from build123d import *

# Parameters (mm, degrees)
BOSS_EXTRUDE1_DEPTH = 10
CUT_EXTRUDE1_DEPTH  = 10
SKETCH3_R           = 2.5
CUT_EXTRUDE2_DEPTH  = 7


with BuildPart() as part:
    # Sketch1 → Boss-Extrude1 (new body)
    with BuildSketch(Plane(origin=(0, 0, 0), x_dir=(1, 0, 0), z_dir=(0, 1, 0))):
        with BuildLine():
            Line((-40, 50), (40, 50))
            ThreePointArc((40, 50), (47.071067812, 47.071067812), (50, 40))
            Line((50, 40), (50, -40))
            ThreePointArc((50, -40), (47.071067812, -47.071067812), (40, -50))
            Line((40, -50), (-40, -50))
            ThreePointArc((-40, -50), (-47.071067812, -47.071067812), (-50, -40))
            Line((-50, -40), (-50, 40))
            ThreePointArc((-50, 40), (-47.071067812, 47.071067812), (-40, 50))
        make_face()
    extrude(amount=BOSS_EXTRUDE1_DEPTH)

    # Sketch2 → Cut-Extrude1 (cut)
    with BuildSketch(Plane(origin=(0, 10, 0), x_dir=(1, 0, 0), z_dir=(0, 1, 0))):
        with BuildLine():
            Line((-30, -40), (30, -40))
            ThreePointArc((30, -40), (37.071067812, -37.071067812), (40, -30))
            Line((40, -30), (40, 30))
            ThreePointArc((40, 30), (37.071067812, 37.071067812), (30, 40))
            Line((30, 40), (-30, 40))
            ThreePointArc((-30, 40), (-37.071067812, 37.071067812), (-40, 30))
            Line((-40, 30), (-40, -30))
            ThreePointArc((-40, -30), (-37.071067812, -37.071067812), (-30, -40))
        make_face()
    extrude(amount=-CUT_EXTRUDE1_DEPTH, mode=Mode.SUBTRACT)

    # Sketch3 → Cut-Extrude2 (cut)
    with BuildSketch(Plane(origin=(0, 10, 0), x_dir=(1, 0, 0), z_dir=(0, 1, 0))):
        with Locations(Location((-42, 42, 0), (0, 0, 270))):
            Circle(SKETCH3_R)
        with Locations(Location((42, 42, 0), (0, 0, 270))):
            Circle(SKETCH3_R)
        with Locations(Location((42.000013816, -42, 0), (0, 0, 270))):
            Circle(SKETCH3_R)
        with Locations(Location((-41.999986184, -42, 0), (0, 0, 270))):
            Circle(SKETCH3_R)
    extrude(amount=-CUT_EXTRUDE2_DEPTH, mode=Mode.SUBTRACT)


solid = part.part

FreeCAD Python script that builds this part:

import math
import FreeCAD as App
import Part
import Sketcher

doc = App.newDocument("Part")
body = doc.addObject("PartDesign::Body", "Body")

sketch1 = body.newObject("Sketcher::SketchObject", "Sketch")
sketch1.AttachmentSupport = (doc.getObject("XZ_Plane"), [""])
sketch1.MapMode = "FlatFace"
sketch1.addGeometry(Part.LineSegment(App.Vector(40, -50, 0), App.Vector(-40, -50, 0)), False)
sketch1.addGeometry(Part.ArcOfCircle(Part.Circle(App.Vector(-40, -40, 0), App.Vector(0, 0, 1), 10), math.radians(180), math.radians(270)), False)
sketch1.addGeometry(Part.LineSegment(App.Vector(-50, -40, 0), App.Vector(-50, 40, 0)), False)
sketch1.addGeometry(Part.ArcOfCircle(Part.Circle(App.Vector(-40, 40, 0), App.Vector(0, 0, 1), 10), math.radians(90), math.radians(180)), False)
sketch1.addGeometry(Part.LineSegment(App.Vector(-40, 50, 0), App.Vector(40, 50, 0)), False)
sketch1.addGeometry(Part.ArcOfCircle(Part.Circle(App.Vector(40, 40, 0), App.Vector(0, 0, 1), 10), math.radians(0), math.radians(90)), False)
sketch1.addGeometry(Part.LineSegment(App.Vector(50, 40, 0), App.Vector(50, -40, 0)), False)
sketch1.addGeometry(Part.ArcOfCircle(Part.Circle(App.Vector(40, -40, 0), App.Vector(0, 0, 1), 10), math.radians(-90), math.radians(0)), False)
sketch1.addConstraint(Sketcher.Constraint("Tangent", 0, 2, 1, 2))
sketch1.addConstraint(Sketcher.Constraint("Tangent", 1, 1, 2, 1))
sketch1.addConstraint(Sketcher.Constraint("Tangent", 2, 2, 3, 2))
sketch1.addConstraint(Sketcher.Constraint("Tangent", 3, 1, 4, 1))
sketch1.addConstraint(Sketcher.Constraint("Tangent", 4, 2, 5, 2))
sketch1.addConstraint(Sketcher.Constraint("Tangent", 5, 1, 6, 1))
sketch1.addConstraint(Sketcher.Constraint("Tangent", 6, 2, 7, 2))
sketch1.addConstraint(Sketcher.Constraint("Tangent", 7, 1, 0, 1))
sketch1.addConstraint(Sketcher.Constraint("Horizontal", 0))
sketch1.addConstraint(Sketcher.Constraint("Vertical", 2))
sketch1.addConstraint(Sketcher.Constraint("Horizontal", 4))
sketch1.addConstraint(Sketcher.Constraint("Vertical", 6))
sketch1.addConstraint(Sketcher.Constraint("Equal", 1, 3))
sketch1.addConstraint(Sketcher.Constraint("Equal", 3, 5))
sketch1.addConstraint(Sketcher.Constraint("Equal", 5, 7))
sketch1.addConstraint(Sketcher.Constraint("Symmetric", 1, 3, 5, 3, -1, 1))
sketch1.addConstraint(Sketcher.Constraint("Equal", 4, 2))
sketch1.addConstraint(Sketcher.Constraint("Radius", 1, 10.0))
sketch1.addConstraint(Sketcher.Constraint("DistanceX", 0, 2, 0, 1, 80.0))
pad1 = body.newObject("PartDesign::Pad", "Pad")
pad1.Profile = sketch1
pad1.Length = 10
pad1.Reversed = True

sketch2 = body.newObject("Sketcher::SketchObject", "Sketch001")
sketch2.AttachmentSupport = (doc.getObject("XZ_Plane"), [""])
sketch2.MapMode = "FlatFace"
sketch2.AttachmentOffset = App.Placement(App.Vector(0, 0, -10), App.Rotation())
sketch2.addGeometry(Part.LineSegment(App.Vector(-30, 40, 0), App.Vector(30, 40, 0)), False)
sketch2.addGeometry(Part.ArcOfCircle(Part.Circle(App.Vector(30, 30, 0), App.Vector(0, 0, 1), 10), math.radians(0), math.radians(90)), False)
sketch2.addGeometry(Part.LineSegment(App.Vector(40, 30, 0), App.Vector(40, -30, 0)), False)
sketch2.addGeometry(Part.ArcOfCircle(Part.Circle(App.Vector(30, -30, 0), App.Vector(0, 0, 1), 10), math.radians(-90), math.radians(0)), False)
sketch2.addGeometry(Part.LineSegment(App.Vector(30, -40, 0), App.Vector(-30, -40, 0)), False)
sketch2.addGeometry(Part.ArcOfCircle(Part.Circle(App.Vector(-30, -30, 0), App.Vector(0, 0, 1), 10), math.radians(180), math.radians(270)), False)
sketch2.addGeometry(Part.LineSegment(App.Vector(-40, -30, 0), App.Vector(-40, 30, 0)), False)
sketch2.addGeometry(Part.ArcOfCircle(Part.Circle(App.Vector(-30, 30, 0), App.Vector(0, 0, 1), 10), math.radians(90), math.radians(180)), False)
sketch2.addConstraint(Sketcher.Constraint("Tangent", 0, 2, 1, 2))
sketch2.addConstraint(Sketcher.Constraint("Tangent", 1, 1, 2, 1))
sketch2.addConstraint(Sketcher.Constraint("Tangent", 2, 2, 3, 2))
sketch2.addConstraint(Sketcher.Constraint("Tangent", 3, 1, 4, 1))
sketch2.addConstraint(Sketcher.Constraint("Tangent", 4, 2, 5, 2))
sketch2.addConstraint(Sketcher.Constraint("Tangent", 5, 1, 6, 1))
sketch2.addConstraint(Sketcher.Constraint("Tangent", 6, 2, 7, 2))
sketch2.addConstraint(Sketcher.Constraint("Tangent", 7, 1, 0, 1))
sketch2.addConstraint(Sketcher.Constraint("Horizontal", 0))
sketch2.addConstraint(Sketcher.Constraint("Vertical", 2))
sketch2.addConstraint(Sketcher.Constraint("Horizontal", 4))
sketch2.addConstraint(Sketcher.Constraint("Vertical", 6))
sketch2.addConstraint(Sketcher.Constraint("Equal", 1, 3))
sketch2.addConstraint(Sketcher.Constraint("Equal", 3, 5))
sketch2.addConstraint(Sketcher.Constraint("Equal", 5, 7))
sketch2.addConstraint(Sketcher.Constraint("Symmetric", 1, 3, 5, 3, -1, 1))
sketch2.addConstraint(Sketcher.Constraint("Equal", 4, 2))
sketch2.addConstraint(Sketcher.Constraint("Radius", 1, 10.0))
sketch2.addConstraint(Sketcher.Constraint("DistanceX", 0, 1, 0, 2, 60.0))
pocket1 = body.newObject("PartDesign::Pocket", "Pocket")
pocket1.Profile = sketch2
pocket1.Length = 10
pocket1.Reversed = True

sketch3 = body.newObject("Sketcher::SketchObject", "Sketch002")
sketch3.AttachmentSupport = (doc.getObject("XZ_Plane"), [""])
sketch3.MapMode = "FlatFace"
sketch3.AttachmentOffset = App.Placement(App.Vector(0, 0, -10), App.Rotation())
sketch3.addGeometry(Part.Circle(App.Vector(-42, -42, 0), App.Vector(0, 0, 1), 2.5), False)
sketch3.addGeometry(Part.Circle(App.Vector(42, -42, 0), App.Vector(0, 0, 1), 2.5), False)
sketch3.addGeometry(Part.Circle(App.Vector(42, 42, 0), App.Vector(0, 0, 1), 2.5), False)
sketch3.addGeometry(Part.Circle(App.Vector(-42, 42, 0), App.Vector(0, 0, 1), 2.5), False)
sketch3.addConstraint(Sketcher.Constraint("Equal", 0, 1))
sketch3.addConstraint(Sketcher.Constraint("Equal", 1, 2))
sketch3.addConstraint(Sketcher.Constraint("Equal", 2, 3))
sketch3.addConstraint(Sketcher.Constraint("Symmetric", 0, 3, 1, 3, -2))
sketch3.addConstraint(Sketcher.Constraint("Horizontal", 2, 3, 3, 3))
sketch3.addConstraint(Sketcher.Constraint("Diameter", 0, 5.0))
sketch3.addConstraint(Sketcher.Constraint("DistanceX", 0, 3, -1, 1, 42.0))
sketch3.addConstraint(Sketcher.Constraint("DistanceY", 0, 3, -1, 1, 42.0))
sketch3.addConstraint(Sketcher.Constraint("DistanceY", -1, 1, 2, 3, 42.0))
sketch3.addConstraint(Sketcher.Constraint("DistanceX", 3, 3, 2, 3, 84.0))
sketch3.addConstraint(Sketcher.Constraint("DistanceX", -1, 1, 2, 3, 42.000014))
pocket2 = body.newObject("PartDesign::Pocket", "Pocket001")
pocket2.Profile = sketch3
pocket2.Length = 7
pocket2.Reversed = True

doc.recompute()
